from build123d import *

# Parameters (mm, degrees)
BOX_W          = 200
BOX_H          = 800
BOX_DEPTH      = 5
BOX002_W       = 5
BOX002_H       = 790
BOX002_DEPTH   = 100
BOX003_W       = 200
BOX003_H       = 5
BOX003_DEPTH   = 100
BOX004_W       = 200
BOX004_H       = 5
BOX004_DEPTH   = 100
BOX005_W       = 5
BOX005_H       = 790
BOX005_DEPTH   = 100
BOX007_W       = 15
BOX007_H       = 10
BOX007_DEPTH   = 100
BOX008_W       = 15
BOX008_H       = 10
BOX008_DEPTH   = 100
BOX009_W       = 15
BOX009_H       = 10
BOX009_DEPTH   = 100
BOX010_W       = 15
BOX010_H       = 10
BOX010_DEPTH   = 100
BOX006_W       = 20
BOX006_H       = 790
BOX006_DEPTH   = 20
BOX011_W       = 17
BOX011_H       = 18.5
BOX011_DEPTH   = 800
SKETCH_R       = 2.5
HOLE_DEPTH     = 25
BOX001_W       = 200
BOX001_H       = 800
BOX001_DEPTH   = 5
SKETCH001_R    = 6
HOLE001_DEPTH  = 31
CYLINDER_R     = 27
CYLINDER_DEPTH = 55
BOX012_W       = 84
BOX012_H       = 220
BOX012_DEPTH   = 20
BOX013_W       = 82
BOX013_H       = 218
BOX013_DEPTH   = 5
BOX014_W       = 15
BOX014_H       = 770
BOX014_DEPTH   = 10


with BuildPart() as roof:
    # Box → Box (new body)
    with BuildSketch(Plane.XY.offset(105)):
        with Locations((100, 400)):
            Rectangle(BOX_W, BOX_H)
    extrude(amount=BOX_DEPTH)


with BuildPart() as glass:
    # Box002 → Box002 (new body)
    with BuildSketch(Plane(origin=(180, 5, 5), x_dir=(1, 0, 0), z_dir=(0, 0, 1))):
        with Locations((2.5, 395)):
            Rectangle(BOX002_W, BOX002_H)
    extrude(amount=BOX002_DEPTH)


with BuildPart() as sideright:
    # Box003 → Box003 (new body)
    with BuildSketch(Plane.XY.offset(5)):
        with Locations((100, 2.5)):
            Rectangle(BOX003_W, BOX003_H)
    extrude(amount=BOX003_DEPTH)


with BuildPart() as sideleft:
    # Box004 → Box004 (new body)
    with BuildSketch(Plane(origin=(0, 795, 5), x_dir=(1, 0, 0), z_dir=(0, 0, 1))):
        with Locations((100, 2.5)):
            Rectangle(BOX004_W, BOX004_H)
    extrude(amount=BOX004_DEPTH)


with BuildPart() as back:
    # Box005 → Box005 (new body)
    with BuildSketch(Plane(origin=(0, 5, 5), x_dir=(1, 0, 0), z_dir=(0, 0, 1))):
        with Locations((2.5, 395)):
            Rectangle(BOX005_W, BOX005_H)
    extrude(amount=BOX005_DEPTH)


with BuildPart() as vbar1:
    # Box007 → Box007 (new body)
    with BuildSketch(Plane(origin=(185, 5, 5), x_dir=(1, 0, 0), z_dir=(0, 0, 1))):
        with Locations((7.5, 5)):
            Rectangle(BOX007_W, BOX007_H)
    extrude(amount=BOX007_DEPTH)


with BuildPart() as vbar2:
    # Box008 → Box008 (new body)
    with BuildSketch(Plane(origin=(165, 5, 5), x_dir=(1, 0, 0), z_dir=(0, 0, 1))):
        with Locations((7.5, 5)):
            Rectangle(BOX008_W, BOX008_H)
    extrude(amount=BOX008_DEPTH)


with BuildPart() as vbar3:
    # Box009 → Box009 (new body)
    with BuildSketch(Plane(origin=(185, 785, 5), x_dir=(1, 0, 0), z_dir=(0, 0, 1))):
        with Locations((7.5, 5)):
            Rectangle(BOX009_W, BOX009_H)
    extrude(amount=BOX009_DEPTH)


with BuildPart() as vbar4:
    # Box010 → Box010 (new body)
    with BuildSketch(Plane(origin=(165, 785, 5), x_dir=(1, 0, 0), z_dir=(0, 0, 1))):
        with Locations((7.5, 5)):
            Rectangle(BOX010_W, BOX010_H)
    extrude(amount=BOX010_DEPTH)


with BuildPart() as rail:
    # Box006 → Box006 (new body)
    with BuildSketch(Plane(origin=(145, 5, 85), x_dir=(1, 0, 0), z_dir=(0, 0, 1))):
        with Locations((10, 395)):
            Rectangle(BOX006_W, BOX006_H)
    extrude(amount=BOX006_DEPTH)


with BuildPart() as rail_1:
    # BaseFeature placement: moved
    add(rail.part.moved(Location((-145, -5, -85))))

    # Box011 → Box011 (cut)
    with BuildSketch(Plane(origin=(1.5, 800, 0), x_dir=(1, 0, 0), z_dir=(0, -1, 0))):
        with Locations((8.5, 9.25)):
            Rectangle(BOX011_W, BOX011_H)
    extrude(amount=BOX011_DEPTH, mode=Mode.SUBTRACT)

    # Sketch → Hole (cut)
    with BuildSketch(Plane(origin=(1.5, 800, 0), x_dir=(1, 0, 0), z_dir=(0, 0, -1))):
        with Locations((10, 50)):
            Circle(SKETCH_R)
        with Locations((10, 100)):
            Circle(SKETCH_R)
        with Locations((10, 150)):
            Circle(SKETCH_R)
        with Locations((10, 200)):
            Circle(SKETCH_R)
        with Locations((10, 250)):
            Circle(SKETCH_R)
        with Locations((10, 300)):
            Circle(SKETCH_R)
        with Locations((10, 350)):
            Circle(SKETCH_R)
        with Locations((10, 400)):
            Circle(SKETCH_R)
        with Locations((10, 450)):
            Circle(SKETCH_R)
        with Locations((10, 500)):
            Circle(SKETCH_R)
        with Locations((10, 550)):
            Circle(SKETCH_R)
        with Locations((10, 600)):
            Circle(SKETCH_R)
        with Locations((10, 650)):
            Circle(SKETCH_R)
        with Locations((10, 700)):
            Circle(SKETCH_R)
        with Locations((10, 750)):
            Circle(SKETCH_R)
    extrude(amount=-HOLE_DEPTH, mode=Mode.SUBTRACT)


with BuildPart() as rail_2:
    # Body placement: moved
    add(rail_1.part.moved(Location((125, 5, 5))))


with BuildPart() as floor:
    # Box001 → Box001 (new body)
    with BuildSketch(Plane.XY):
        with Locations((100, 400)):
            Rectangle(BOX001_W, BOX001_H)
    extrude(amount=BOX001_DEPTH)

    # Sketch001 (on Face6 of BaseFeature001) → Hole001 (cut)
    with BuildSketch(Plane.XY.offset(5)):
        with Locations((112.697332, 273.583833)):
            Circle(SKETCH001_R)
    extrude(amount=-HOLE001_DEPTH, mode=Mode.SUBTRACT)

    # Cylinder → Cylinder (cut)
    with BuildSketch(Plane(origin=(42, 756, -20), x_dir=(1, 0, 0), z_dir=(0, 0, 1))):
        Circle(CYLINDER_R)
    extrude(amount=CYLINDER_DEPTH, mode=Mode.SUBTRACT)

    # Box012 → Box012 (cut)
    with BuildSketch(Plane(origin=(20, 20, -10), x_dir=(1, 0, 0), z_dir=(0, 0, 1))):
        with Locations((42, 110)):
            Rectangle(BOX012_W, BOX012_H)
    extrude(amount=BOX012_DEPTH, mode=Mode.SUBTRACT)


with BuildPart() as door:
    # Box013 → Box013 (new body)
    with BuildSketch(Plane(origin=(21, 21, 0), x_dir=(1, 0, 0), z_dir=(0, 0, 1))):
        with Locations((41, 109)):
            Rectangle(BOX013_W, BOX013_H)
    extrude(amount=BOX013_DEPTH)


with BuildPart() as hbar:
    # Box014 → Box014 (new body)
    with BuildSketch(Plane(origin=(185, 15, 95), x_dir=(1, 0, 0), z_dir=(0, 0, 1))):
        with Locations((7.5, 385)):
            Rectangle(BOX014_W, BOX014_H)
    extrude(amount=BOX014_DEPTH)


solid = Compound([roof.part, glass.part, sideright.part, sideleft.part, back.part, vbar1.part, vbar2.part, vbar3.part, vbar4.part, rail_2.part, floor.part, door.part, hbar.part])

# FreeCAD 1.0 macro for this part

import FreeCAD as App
import Part
import Sketcher
Q = App.Units.Quantity


def add_polygon(sketch, points):
    """Adds a closed chain of lines whose ends are joined by coincident constraints."""
    first, n = sketch.GeometryCount, len(points)
    for a, b in zip(points, points[1:] + points[:1]):
        sketch.addGeometry(Part.LineSegment(App.Vector(*a, 0), App.Vector(*b, 0)), False)
    for i in range(n):
        sketch.addConstraint(Sketcher.Constraint("Coincident", first + i, 2, first + (i + 1) % n, 1))

doc = App.newDocument("Part")
body = doc.addObject("PartDesign::Body", "Body")

# Sketch on XY plane
sketch1 = body.newObject("Sketcher::SketchObject", "Sketch")
sketch1.AttachmentSupport = (doc.getObject("XY_Plane"), [""])
sketch1.MapMode = "FlatFace"
sketch1.AttachmentOffset = App.Placement(App.Vector(0, 0, 105), App.Rotation())
add_polygon(sketch1, [(0, 800), (0, 0), (200, 0), (200, 800)])  # lines 0-3
sketch1.addConstraint([
    Sketcher.Constraint("Vertical", 0),
    Sketcher.Constraint("Horizontal", 1),
    Sketcher.Constraint("Vertical", 2),
    Sketcher.Constraint("Horizontal", 3),
    Sketcher.Constraint("Coincident", 0, 2, -1, 1),
    Sketcher.Constraint("DistanceX", 1, 1, 1, 2, Q("200 mm")),
    Sketcher.Constraint("DistanceY", 0, 2, 0, 1, Q("800 mm")),
])
pad1 = body.newObject("PartDesign::Pad", "Pad")
pad1.Profile = sketch1
pad1.Length = 5
body2 = doc.addObject("PartDesign::Body", "Body001")

# Sketch on XY plane
sketch2 = body2.newObject("Sketcher::SketchObject", "Sketch001")
sketch2.AttachmentSupport = (doc.getObject("XY_Plane001"), [""])
sketch2.MapMode = "FlatFace"
sketch2.AttachmentOffset = App.Placement(App.Vector(0, 0, 5), App.Rotation())
add_polygon(sketch2, [(180, 795), (180, 5), (185, 5), (185, 795)])  # lines 0-3
sketch2.addConstraint([
    Sketcher.Constraint("Vertical", 0),
    Sketcher.Constraint("Horizontal", 1),
    Sketcher.Constraint("Vertical", 2),
    Sketcher.Constraint("Horizontal", 3),
    Sketcher.Constraint("DistanceX", 1, 1, 1, 2, Q("5 mm")),
    Sketcher.Constraint("DistanceY", 0, 2, 0, 1, Q("790 mm")),
    Sketcher.Constraint("DistanceX", -1, 1, 0, 2, Q("180 mm")),
    Sketcher.Constraint("DistanceY", -1, 1, 0, 2, Q("5 mm")),
])
pad2 = body2.newObject("PartDesign::Pad", "Pad001")
pad2.Profile = sketch2
pad2.Length = 100
body3 = doc.addObject("PartDesign::Body", "Body002")

# Sketch on XY plane
sketch3 = body3.newObject("Sketcher::SketchObject", "Sketch002")
sketch3.AttachmentSupport = (doc.getObject("XY_Plane002"), [""])
sketch3.MapMode = "FlatFace"
sketch3.AttachmentOffset = App.Placement(App.Vector(0, 0, 5), App.Rotation())
add_polygon(sketch3, [(0, 5), (0, 0), (200, 0), (200, 5)])  # lines 0-3
sketch3.addConstraint([
    Sketcher.Constraint("Vertical", 0),
    Sketcher.Constraint("Horizontal", 1),
    Sketcher.Constraint("Vertical", 2),
    Sketcher.Constraint("Horizontal", 3),
    Sketcher.Constraint("Coincident", 0, 2, -1, 1),
    Sketcher.Constraint("DistanceX", 1, 1, 1, 2, Q("200 mm")),
    Sketcher.Constraint("DistanceY", 0, 2, 0, 1, Q("5 mm")),
])
pad3 = body3.newObject("PartDesign::Pad", "Pad002")
pad3.Profile = sketch3
pad3.Length = 100
body4 = doc.addObject("PartDesign::Body", "Body003")

# Sketch on XY plane
sketch4 = body4.newObject("Sketcher::SketchObject", "Sketch003")
sketch4.AttachmentSupport = (doc.getObject("XY_Plane003"), [""])
sketch4.MapMode = "FlatFace"
sketch4.AttachmentOffset = App.Placement(App.Vector(0, 0, 5), App.Rotation())
add_polygon(sketch4, [(0, 800), (0, 795), (200, 795), (200, 800)])  # lines 0-3
sketch4.addConstraint([
    Sketcher.Constraint("Vertical", 0),
    Sketcher.Constraint("Horizontal", 1),
    Sketcher.Constraint("Vertical", 2),
    Sketcher.Constraint("Horizontal", 3),
    Sketcher.Constraint("PointOnObject", 0, 2, -2),
    Sketcher.Constraint("DistanceX", 1, 1, 1, 2, Q("200 mm")),
    Sketcher.Constraint("DistanceY", 0, 2, 0, 1, Q("5 mm")),
    Sketcher.Constraint("DistanceY", -1, 1, 0, 2, Q("795 mm")),
])
pad4 = body4.newObject("PartDesign::Pad", "Pad003")
pad4.Profile = sketch4
pad4.Length = 100
body5 = doc.addObject("PartDesign::Body", "Body004")

# Sketch on XY plane
sketch5 = body5.newObject("Sketcher::SketchObject", "Sketch004")
sketch5.AttachmentSupport = (doc.getObject("XY_Plane004"), [""])
sketch5.MapMode = "FlatFace"
sketch5.AttachmentOffset = App.Placement(App.Vector(0, 0, 5), App.Rotation())
add_polygon(sketch5, [(0, 795), (0, 5), (5, 5), (5, 795)])  # lines 0-3
sketch5.addConstraint([
    Sketcher.Constraint("Vertical", 0),
    Sketcher.Constraint("Horizontal", 1),
    Sketcher.Constraint("Vertical", 2),
    Sketcher.Constraint("Horizontal", 3),
    Sketcher.Constraint("PointOnObject", 0, 2, -2),
    Sketcher.Constraint("DistanceX", 1, 1, 1, 2, Q("5 mm")),
    Sketcher.Constraint("DistanceY", 0, 2, 0, 1, Q("790 mm")),
    Sketcher.Constraint("DistanceY", -1, 1, 0, 2, Q("5 mm")),
])
pad5 = body5.newObject("PartDesign::Pad", "Pad004")
pad5.Profile = sketch5
pad5.Length = 100
body6 = doc.addObject("PartDesign::Body", "Body005")

# Sketch on XY plane
sketch6 = body6.newObject("Sketcher::SketchObject", "Sketch005")
sketch6.AttachmentSupport = (doc.getObject("XY_Plane005"), [""])
sketch6.MapMode = "FlatFace"
sketch6.AttachmentOffset = App.Placement(App.Vector(0, 0, 5), App.Rotation())
add_polygon(sketch6, [(185, 15), (185, 5), (200, 5), (200, 15)])  # lines 0-3
sketch6.addConstraint([
    Sketcher.Constraint("Vertical", 0),
    Sketcher.Constraint("Horizontal", 1),
    Sketcher.Constraint("Vertical", 2),
    Sketcher.Constraint("Horizontal", 3),
    Sketcher.Constraint("DistanceX", 1, 1, 1, 2, Q("15 mm")),
    Sketcher.Constraint("DistanceY", 0, 2, 0, 1, Q("10 mm")),
    Sketcher.Constraint("DistanceX", -1, 1, 0, 2, Q("185 mm")),
    Sketcher.Constraint("DistanceY", -1, 1, 0, 2, Q("5 mm")),
])
pad6 = body6.newObject("PartDesign::Pad", "Pad005")
pad6.Profile = sketch6
pad6.Length = 100
body7 = doc.addObject("PartDesign::Body", "Body006")

# Sketch on XY plane
sketch7 = body7.newObject("Sketcher::SketchObject", "Sketch006")
sketch7.AttachmentSupport = (doc.getObject("XY_Plane006"), [""])
sketch7.MapMode = "FlatFace"
sketch7.AttachmentOffset = App.Placement(App.Vector(0, 0, 5), App.Rotation())
add_polygon(sketch7, [(165, 15), (165, 5), (180, 5), (180, 15)])  # lines 0-3
sketch7.addConstraint([
    Sketcher.Constraint("Vertical", 0),
    Sketcher.Constraint("Horizontal", 1),
    Sketcher.Constraint("Vertical", 2),
    Sketcher.Constraint("Horizontal", 3),
    Sketcher.Constraint("DistanceX", 1, 1, 1, 2, Q("15 mm")),
    Sketcher.Constraint("DistanceY", 0, 2, 0, 1, Q("10 mm")),
    Sketcher.Constraint("DistanceX", -1, 1, 0, 2, Q("165 mm")),
    Sketcher.Constraint("DistanceY", -1, 1, 0, 2, Q("5 mm")),
])
pad7 = body7.newObject("PartDesign::Pad", "Pad006")
pad7.Profile = sketch7
pad7.Length = 100
body8 = doc.addObject("PartDesign::Body", "Body007")

# Sketch on XY plane
sketch8 = body8.newObject("Sketcher::SketchObject", "Sketch007")
sketch8.AttachmentSupport = (doc.getObject("XY_Plane007"), [""])
sketch8.MapMode = "FlatFace"
sketch8.AttachmentOffset = App.Placement(App.Vector(0, 0, 5), App.Rotation())
add_polygon(sketch8, [(185, 795), (185, 785), (200, 785), (200, 795)])  # lines 0-3
sketch8.addConstraint([
    Sketcher.Constraint("Vertical", 0),
    Sketcher.Constraint("Horizontal", 1),
    Sketcher.Constraint("Vertical", 2),
    Sketcher.Constraint("Horizontal", 3),
    Sketcher.Constraint("DistanceX", 1, 1, 1, 2, Q("15 mm")),
    Sketcher.Constraint("DistanceY", 0, 2, 0, 1, Q("10 mm")),
    Sketcher.Constraint("DistanceX", -1, 1, 0, 2, Q("185 mm")),
    Sketcher.Constraint("DistanceY", -1, 1, 0, 2, Q("785 mm")),
])
pad8 = body8.newObject("PartDesign::Pad", "Pad007")
pad8.Profile = sketch8
pad8.Length = 100
body9 = doc.addObject("PartDesign::Body", "Body008")

# Sketch on XY plane
sketch9 = body9.newObject("Sketcher::SketchObject", "Sketch008")
sketch9.AttachmentSupport = (doc.getObject("XY_Plane008"), [""])
sketch9.MapMode = "FlatFace"
sketch9.AttachmentOffset = App.Placement(App.Vector(0, 0, 5), App.Rotation())
add_polygon(sketch9, [(165, 795), (165, 785), (180, 785), (180, 795)])  # lines 0-3
sketch9.addConstraint([
    Sketcher.Constraint("Vertical", 0),
    Sketcher.Constraint("Horizontal", 1),
    Sketcher.Constraint("Vertical", 2),
    Sketcher.Constraint("Horizontal", 3),
    Sketcher.Constraint("DistanceX", 1, 1, 1, 2, Q("15 mm")),
    Sketcher.Constraint("DistanceY", 0, 2, 0, 1, Q("10 mm")),
    Sketcher.Constraint("DistanceX", -1, 1, 0, 2, Q("165 mm")),
    Sketcher.Constraint("DistanceY", -1, 1, 0, 2, Q("785 mm")),
])
pad9 = body9.newObject("PartDesign::Pad", "Pad008")
pad9.Profile = sketch9
pad9.Length = 100
body10 = doc.addObject("PartDesign::Body", "Body009")

# Sketch on XY plane
sketch10 = body10.newObject("Sketcher::SketchObject", "Sketch009")
sketch10.AttachmentSupport = (doc.getObject("XY_Plane009"), [""])
sketch10.MapMode = "FlatFace"
sketch10.AttachmentOffset = App.Placement(App.Vector(0, 0, 85), App.Rotation())
add_polygon(sketch10, [(145, 795), (145, 5), (165, 5), (165, 795)])  # lines 0-3
sketch10.addConstraint([
    Sketcher.Constraint("Vertical", 0),
    Sketcher.Constraint("Horizontal", 1),
    Sketcher.Constraint("Vertical", 2),
    Sketcher.Constraint("Horizontal", 3),
    Sketcher.Constraint("DistanceX", 1, 1, 1, 2, Q("20 mm")),
    Sketcher.Constraint("DistanceY", 0, 2, 0, 1, Q("790 mm")),
    Sketcher.Constraint("DistanceX", -1, 1, 0, 2, Q("145 mm")),
    Sketcher.Constraint("DistanceY", -1, 1, 0, 2, Q("5 mm")),
])
pad10 = body10.newObject("PartDesign::Pad", "Pad009")
pad10.Profile = sketch10
pad10.Length = 20
body11 = doc.addObject("PartDesign::Body", "Body010")
doc.recompute()

body10.Placement = App.Placement(App.Vector(-145, -5, -85), App.Rotation(App.Vector(0, 0, 1), 0))
boolean = body11.newObject("PartDesign::Boolean", "Boolean")
boolean.Type = "Fuse"
boolean.addObjects([body10])

# Sketch on XZ plane
sketch11 = body11.newObject("Sketcher::SketchObject", "Sketch010")
sketch11.AttachmentSupport = (doc.getObject("XZ_Plane010"), [""])
sketch11.MapMode = "FlatFace"
sketch11.AttachmentOffset = App.Placement(App.Vector(0, 0, -800), App.Rotation())
add_polygon(sketch11, [(2, 18), (2, 0), (18, 0), (18, 18)])  # lines 0-3
sketch11.addConstraint([
    Sketcher.Constraint("Vertical", 0),
    Sketcher.Constraint("Horizontal", 1),
    Sketcher.Constraint("Vertical", 2),
    Sketcher.Constraint("Horizontal", 3),
    Sketcher.Constraint("PointOnObject", 0, 2, -1),
    Sketcher.Constraint("DistanceX", 1, 1, 1, 2, Q("17 mm")),
    Sketcher.Constraint("DistanceY", 0, 2, 0, 1, Q("18.5 mm")),
    Sketcher.Constraint("DistanceX", -1, 1, 0, 2, Q("1.5 mm")),
])
pocket1 = body11.newObject("PartDesign::Pocket", "Pocket")
pocket1.Profile = sketch11
pocket1.Length = 800
pocket1.Reversed = True

# Sketch on XY plane
sketch12 = body11.newObject("Sketcher::SketchObject", "Sketch011")
sketch12.AttachmentSupport = (doc.getObject("XY_Plane010"), [""])
sketch12.MapMode = "FlatFace"
sketch12.addGeometry([
    Part.Circle(App.Vector(11.5, 750, 0), App.Vector(0, 0, 1), 2.5),  # 0
    Part.Circle(App.Vector(11.5, 700, 0), App.Vector(0, 0, 1), 2.5),  # 1
    Part.Circle(App.Vector(11.5, 650, 0), App.Vector(0, 0, 1), 2.5),  # 2
    Part.Circle(App.Vector(11.5, 600, 0), App.Vector(0, 0, 1), 2.5),  # 3
    Part.Circle(App.Vector(11.5, 550, 0), App.Vector(0, 0, 1), 2.5),  # 4
    Part.Circle(App.Vector(11.5, 500, 0), App.Vector(0, 0, 1), 2.5),  # 5
    Part.Circle(App.Vector(11.5, 450, 0), App.Vector(0, 0, 1), 2.5),  # 6
    Part.Circle(App.Vector(11.5, 400, 0), App.Vector(0, 0, 1), 2.5),  # 7
    Part.Circle(App.Vector(11.5, 350, 0), App.Vector(0, 0, 1), 2.5),  # 8
    Part.Circle(App.Vector(11.5, 300, 0), App.Vector(0, 0, 1), 2.5),  # 9
    Part.Circle(App.Vector(11.5, 250, 0), App.Vector(0, 0, 1), 2.5),  # 10
    Part.Circle(App.Vector(11.5, 200, 0), App.Vector(0, 0, 1), 2.5),  # 11
    Part.Circle(App.Vector(11.5, 150, 0), App.Vector(0, 0, 1), 2.5),  # 12
    Part.Circle(App.Vector(11.5, 100, 0), App.Vector(0, 0, 1), 2.5),  # 13
    Part.Circle(App.Vector(11.5, 50, 0), App.Vector(0, 0, 1), 2.5),  # 14
], False)
sketch12.addConstraint([
    Sketcher.Constraint("Equal", 0, 1),
    Sketcher.Constraint("Equal", 1, 2),
    Sketcher.Constraint("Equal", 2, 3),
    Sketcher.Constraint("Equal", 3, 4),
    Sketcher.Constraint("Equal", 4, 5),
    Sketcher.Constraint("Equal", 5, 6),
    Sketcher.Constraint("Equal", 6, 7),
    Sketcher.Constraint("Equal", 7, 8),
    Sketcher.Constraint("Equal", 8, 9),
    Sketcher.Constraint("Equal", 9, 10),
    Sketcher.Constraint("Equal", 10, 11),
    Sketcher.Constraint("Equal", 11, 12),
    Sketcher.Constraint("Equal", 12, 13),
    Sketcher.Constraint("Equal", 13, 14),
    Sketcher.Constraint("Vertical", 0, 3, 1, 3),
    Sketcher.Constraint("Vertical", 1, 3, 2, 3),
    Sketcher.Constraint("Vertical", 2, 3, 3, 3),
    Sketcher.Constraint("Vertical", 3, 3, 4, 3),
    Sketcher.Constraint("Vertical", 4, 3, 5, 3),
    Sketcher.Constraint("Vertical", 5, 3, 6, 3),
    Sketcher.Constraint("Vertical", 6, 3, 7, 3),
    Sketcher.Constraint("Vertical", 7, 3, 8, 3),
    Sketcher.Constraint("Vertical", 8, 3, 9, 3),
    Sketcher.Constraint("Vertical", 9, 3, 10, 3),
    Sketcher.Constraint("Vertical", 10, 3, 11, 3),
    Sketcher.Constraint("Vertical", 11, 3, 12, 3),
    Sketcher.Constraint("Vertical", 12, 3, 13, 3),
    Sketcher.Constraint("Vertical", 13, 3, 14, 3),
    Sketcher.Constraint("Diameter", 0, Q("5 mm")),
    Sketcher.Constraint("DistanceY", -1, 1, 0, 3, Q("750 mm")),
    Sketcher.Constraint("DistanceY", -1, 1, 1, 3, Q("700 mm")),
    Sketcher.Constraint("DistanceY", -1, 1, 2, 3, Q("650 mm")),
    Sketcher.Constraint("DistanceY", -1, 1, 3, 3, Q("600 mm")),
    Sketcher.Constraint("DistanceY", -1, 1, 4, 3, Q("550 mm")),
    Sketcher.Constraint("DistanceY", -1, 1, 5, 3, Q("500 mm")),
    Sketcher.Constraint("DistanceY", -1, 1, 6, 3, Q("450 mm")),
    Sketcher.Constraint("DistanceY", -1, 1, 7, 3, Q("400 mm")),
    Sketcher.Constraint("DistanceY", -1, 1, 8, 3, Q("350 mm")),
    Sketcher.Constraint("DistanceY", -1, 1, 9, 3, Q("300 mm")),
    Sketcher.Constraint("DistanceY", -1, 1, 10, 3, Q("250 mm")),
    Sketcher.Constraint("DistanceY", -1, 1, 11, 3, Q("200 mm")),
    Sketcher.Constraint("DistanceY", -1, 1, 12, 3, Q("150 mm")),
    Sketcher.Constraint("DistanceY", -1, 1, 13, 3, Q("100 mm")),
    Sketcher.Constraint("DistanceY", -1, 1, 14, 3, Q("50 mm")),
    Sketcher.Constraint("DistanceX", -1, 1, 0, 3, Q("11.5 mm")),
])
pocket2 = body11.newObject("PartDesign::Pocket", "Pocket001")
pocket2.Profile = sketch12
pocket2.Length = 25
pocket2.Reversed = True
body12 = doc.addObject("PartDesign::Body", "Body011")
doc.recompute()

body11.Placement = App.Placement(App.Vector(125, 5, 5), App.Rotation(App.Vector(0, 0, 1), 0))
boolean2 = body12.newObject("PartDesign::Boolean", "Boolean001")
boolean2.Type = "Fuse"
boolean2.addObjects([body11])
body13 = doc.addObject("PartDesign::Body", "Body012")

# Sketch on XY plane
sketch13 = body13.newObject("Sketcher::SketchObject", "Sketch012")
sketch13.AttachmentSupport = (doc.getObject("XY_Plane012"), [""])
sketch13.MapMode = "FlatFace"
add_polygon(sketch13, [(0, 800), (0, 0), (200, 0), (200, 800)])  # lines 0-3
sketch13.addConstraint([
    Sketcher.Constraint("Vertical", 0),
    Sketcher.Constraint("Horizontal", 1),
    Sketcher.Constraint("Vertical", 2),
    Sketcher.Constraint("Horizontal", 3),
    Sketcher.Constraint("Coincident", 0, 2, -1, 1),
    Sketcher.Constraint("DistanceX", 1, 1, 1, 2, Q("200 mm")),
    Sketcher.Constraint("DistanceY", 0, 2, 0, 1, Q("800 mm")),
])
pad11 = body13.newObject("PartDesign::Pad", "Pad010")
pad11.Profile = sketch13
pad11.Length = 5

# Sketch on XY plane
sketch14 = body13.newObject("Sketcher::SketchObject", "Sketch013")
sketch14.AttachmentSupport = (doc.getObject("XY_Plane012"), [""])
sketch14.MapMode = "FlatFace"
sketch14.AttachmentOffset = App.Placement(App.Vector(0, 0, 5), App.Rotation())
sketch14.addGeometry(Part.Circle(App.Vector(113, 274, 0), App.Vector(0, 0, 1), 6), False)
sketch14.addConstraint([
    Sketcher.Constraint("Diameter", 0, Q("12 mm")),
    Sketcher.Constraint("DistanceX", -1, 1, 0, 3, Q("112.697332 mm")),
    Sketcher.Constraint("DistanceY", -1, 1, 0, 3, Q("273.583833 mm")),
])
pocket3 = body13.newObject("PartDesign::Pocket", "Pocket002")
pocket3.Profile = sketch14
pocket3.Length = 31

# Sketch on XY plane
sketch15 = body13.newObject("Sketcher::SketchObject", "Sketch014")
sketch15.AttachmentSupport = (doc.getObject("XY_Plane012"), [""])
sketch15.MapMode = "FlatFace"
sketch15.AttachmentOffset = App.Placement(App.Vector(0, 0, -20), App.Rotation())
sketch15.addGeometry(Part.Circle(App.Vector(42, 756, 0), App.Vector(0, 0, 1), 27), False)
sketch15.addConstraint([
    Sketcher.Constraint("Diameter", 0, Q("54 mm")),
    Sketcher.Constraint("DistanceX", -1, 1, 0, 3, Q("42 mm")),
    Sketcher.Constraint("DistanceY", -1, 1, 0, 3, Q("756 mm")),
])
pocket4 = body13.newObject("PartDesign::Pocket", "Pocket003")
pocket4.Profile = sketch15
pocket4.Length = 55
pocket4.Reversed = True

# Sketch on XY plane
sketch16 = body13.newObject("Sketcher::SketchObject", "Sketch015")
sketch16.AttachmentSupport = (doc.getObject("XY_Plane012"), [""])
sketch16.MapMode = "FlatFace"
sketch16.AttachmentOffset = App.Placement(App.Vector(0, 0, -10), App.Rotation())
add_polygon(sketch16, [(20, 240), (20, 20), (104, 20), (104, 240)])  # lines 0-3
sketch16.addConstraint([
    Sketcher.Constraint("Vertical", 0),
    Sketcher.Constraint("Horizontal", 1),
    Sketcher.Constraint("Vertical", 2),
    Sketcher.Constraint("Horizontal", 3),
    Sketcher.Constraint("DistanceX", 1, 1, 1, 2, Q("84 mm")),
    Sketcher.Constraint("DistanceY", 0, 2, 0, 1, Q("220 mm")),
    Sketcher.Constraint("DistanceX", -1, 1, 0, 2, Q("20 mm")),
    Sketcher.Constraint("DistanceY", -1, 1, 0, 2, Q("20 mm")),
])
pocket5 = body13.newObject("PartDesign::Pocket", "Pocket004")
pocket5.Profile = sketch16
pocket5.Length = 20
pocket5.Reversed = True
body14 = doc.addObject("PartDesign::Body", "Body013")

# Sketch on XY plane
sketch17 = body14.newObject("Sketcher::SketchObject", "Sketch016")
sketch17.AttachmentSupport = (doc.getObject("XY_Plane013"), [""])
sketch17.MapMode = "FlatFace"
add_polygon(sketch17, [(21, 239), (21, 21), (103, 21), (103, 239)])  # lines 0-3
sketch17.addConstraint([
    Sketcher.Constraint("Vertical", 0),
    Sketcher.Constraint("Horizontal", 1),
    Sketcher.Constraint("Vertical", 2),
    Sketcher.Constraint("Horizontal", 3),
    Sketcher.Constraint("DistanceX", 1, 1, 1, 2, Q("82 mm")),
    Sketcher.Constraint("DistanceY", 0, 2, 0, 1, Q("218 mm")),
    Sketcher.Constraint("DistanceX", -1, 1, 0, 2, Q("21 mm")),
    Sketcher.Constraint("DistanceY", -1, 1, 0, 2, Q("21 mm")),
])
pad12 = body14.newObject("PartDesign::Pad", "Pad011")
pad12.Profile = sketch17
pad12.Length = 5
body15 = doc.addObject("PartDesign::Body", "Body014")

# Sketch on XY plane
sketch18 = body15.newObject("Sketcher::SketchObject", "Sketch017")
sketch18.AttachmentSupport = (doc.getObject("XY_Plane014"), [""])
sketch18.MapMode = "FlatFace"
sketch18.AttachmentOffset = App.Placement(App.Vector(0, 0, 95), App.Rotation())
add_polygon(sketch18, [(185, 785), (185, 15), (200, 15), (200, 785)])  # lines 0-3
sketch18.addConstraint([
    Sketcher.Constraint("Vertical", 0),
    Sketcher.Constraint("Horizontal", 1),
    Sketcher.Constraint("Vertical", 2),
    Sketcher.Constraint("Horizontal", 3),
    Sketcher.Constraint("DistanceX", 1, 1, 1, 2, Q("15 mm")),
    Sketcher.Constraint("DistanceY", 0, 2, 0, 1, Q("770 mm")),
    Sketcher.Constraint("DistanceX", -1, 1, 0, 2, Q("185 mm")),
    Sketcher.Constraint("DistanceY", -1, 1, 0, 2, Q("15 mm")),
])
pad13 = body15.newObject("PartDesign::Pad", "Pad012")
pad13.Profile = sketch18
pad13.Length = 10

doc.recompute()
